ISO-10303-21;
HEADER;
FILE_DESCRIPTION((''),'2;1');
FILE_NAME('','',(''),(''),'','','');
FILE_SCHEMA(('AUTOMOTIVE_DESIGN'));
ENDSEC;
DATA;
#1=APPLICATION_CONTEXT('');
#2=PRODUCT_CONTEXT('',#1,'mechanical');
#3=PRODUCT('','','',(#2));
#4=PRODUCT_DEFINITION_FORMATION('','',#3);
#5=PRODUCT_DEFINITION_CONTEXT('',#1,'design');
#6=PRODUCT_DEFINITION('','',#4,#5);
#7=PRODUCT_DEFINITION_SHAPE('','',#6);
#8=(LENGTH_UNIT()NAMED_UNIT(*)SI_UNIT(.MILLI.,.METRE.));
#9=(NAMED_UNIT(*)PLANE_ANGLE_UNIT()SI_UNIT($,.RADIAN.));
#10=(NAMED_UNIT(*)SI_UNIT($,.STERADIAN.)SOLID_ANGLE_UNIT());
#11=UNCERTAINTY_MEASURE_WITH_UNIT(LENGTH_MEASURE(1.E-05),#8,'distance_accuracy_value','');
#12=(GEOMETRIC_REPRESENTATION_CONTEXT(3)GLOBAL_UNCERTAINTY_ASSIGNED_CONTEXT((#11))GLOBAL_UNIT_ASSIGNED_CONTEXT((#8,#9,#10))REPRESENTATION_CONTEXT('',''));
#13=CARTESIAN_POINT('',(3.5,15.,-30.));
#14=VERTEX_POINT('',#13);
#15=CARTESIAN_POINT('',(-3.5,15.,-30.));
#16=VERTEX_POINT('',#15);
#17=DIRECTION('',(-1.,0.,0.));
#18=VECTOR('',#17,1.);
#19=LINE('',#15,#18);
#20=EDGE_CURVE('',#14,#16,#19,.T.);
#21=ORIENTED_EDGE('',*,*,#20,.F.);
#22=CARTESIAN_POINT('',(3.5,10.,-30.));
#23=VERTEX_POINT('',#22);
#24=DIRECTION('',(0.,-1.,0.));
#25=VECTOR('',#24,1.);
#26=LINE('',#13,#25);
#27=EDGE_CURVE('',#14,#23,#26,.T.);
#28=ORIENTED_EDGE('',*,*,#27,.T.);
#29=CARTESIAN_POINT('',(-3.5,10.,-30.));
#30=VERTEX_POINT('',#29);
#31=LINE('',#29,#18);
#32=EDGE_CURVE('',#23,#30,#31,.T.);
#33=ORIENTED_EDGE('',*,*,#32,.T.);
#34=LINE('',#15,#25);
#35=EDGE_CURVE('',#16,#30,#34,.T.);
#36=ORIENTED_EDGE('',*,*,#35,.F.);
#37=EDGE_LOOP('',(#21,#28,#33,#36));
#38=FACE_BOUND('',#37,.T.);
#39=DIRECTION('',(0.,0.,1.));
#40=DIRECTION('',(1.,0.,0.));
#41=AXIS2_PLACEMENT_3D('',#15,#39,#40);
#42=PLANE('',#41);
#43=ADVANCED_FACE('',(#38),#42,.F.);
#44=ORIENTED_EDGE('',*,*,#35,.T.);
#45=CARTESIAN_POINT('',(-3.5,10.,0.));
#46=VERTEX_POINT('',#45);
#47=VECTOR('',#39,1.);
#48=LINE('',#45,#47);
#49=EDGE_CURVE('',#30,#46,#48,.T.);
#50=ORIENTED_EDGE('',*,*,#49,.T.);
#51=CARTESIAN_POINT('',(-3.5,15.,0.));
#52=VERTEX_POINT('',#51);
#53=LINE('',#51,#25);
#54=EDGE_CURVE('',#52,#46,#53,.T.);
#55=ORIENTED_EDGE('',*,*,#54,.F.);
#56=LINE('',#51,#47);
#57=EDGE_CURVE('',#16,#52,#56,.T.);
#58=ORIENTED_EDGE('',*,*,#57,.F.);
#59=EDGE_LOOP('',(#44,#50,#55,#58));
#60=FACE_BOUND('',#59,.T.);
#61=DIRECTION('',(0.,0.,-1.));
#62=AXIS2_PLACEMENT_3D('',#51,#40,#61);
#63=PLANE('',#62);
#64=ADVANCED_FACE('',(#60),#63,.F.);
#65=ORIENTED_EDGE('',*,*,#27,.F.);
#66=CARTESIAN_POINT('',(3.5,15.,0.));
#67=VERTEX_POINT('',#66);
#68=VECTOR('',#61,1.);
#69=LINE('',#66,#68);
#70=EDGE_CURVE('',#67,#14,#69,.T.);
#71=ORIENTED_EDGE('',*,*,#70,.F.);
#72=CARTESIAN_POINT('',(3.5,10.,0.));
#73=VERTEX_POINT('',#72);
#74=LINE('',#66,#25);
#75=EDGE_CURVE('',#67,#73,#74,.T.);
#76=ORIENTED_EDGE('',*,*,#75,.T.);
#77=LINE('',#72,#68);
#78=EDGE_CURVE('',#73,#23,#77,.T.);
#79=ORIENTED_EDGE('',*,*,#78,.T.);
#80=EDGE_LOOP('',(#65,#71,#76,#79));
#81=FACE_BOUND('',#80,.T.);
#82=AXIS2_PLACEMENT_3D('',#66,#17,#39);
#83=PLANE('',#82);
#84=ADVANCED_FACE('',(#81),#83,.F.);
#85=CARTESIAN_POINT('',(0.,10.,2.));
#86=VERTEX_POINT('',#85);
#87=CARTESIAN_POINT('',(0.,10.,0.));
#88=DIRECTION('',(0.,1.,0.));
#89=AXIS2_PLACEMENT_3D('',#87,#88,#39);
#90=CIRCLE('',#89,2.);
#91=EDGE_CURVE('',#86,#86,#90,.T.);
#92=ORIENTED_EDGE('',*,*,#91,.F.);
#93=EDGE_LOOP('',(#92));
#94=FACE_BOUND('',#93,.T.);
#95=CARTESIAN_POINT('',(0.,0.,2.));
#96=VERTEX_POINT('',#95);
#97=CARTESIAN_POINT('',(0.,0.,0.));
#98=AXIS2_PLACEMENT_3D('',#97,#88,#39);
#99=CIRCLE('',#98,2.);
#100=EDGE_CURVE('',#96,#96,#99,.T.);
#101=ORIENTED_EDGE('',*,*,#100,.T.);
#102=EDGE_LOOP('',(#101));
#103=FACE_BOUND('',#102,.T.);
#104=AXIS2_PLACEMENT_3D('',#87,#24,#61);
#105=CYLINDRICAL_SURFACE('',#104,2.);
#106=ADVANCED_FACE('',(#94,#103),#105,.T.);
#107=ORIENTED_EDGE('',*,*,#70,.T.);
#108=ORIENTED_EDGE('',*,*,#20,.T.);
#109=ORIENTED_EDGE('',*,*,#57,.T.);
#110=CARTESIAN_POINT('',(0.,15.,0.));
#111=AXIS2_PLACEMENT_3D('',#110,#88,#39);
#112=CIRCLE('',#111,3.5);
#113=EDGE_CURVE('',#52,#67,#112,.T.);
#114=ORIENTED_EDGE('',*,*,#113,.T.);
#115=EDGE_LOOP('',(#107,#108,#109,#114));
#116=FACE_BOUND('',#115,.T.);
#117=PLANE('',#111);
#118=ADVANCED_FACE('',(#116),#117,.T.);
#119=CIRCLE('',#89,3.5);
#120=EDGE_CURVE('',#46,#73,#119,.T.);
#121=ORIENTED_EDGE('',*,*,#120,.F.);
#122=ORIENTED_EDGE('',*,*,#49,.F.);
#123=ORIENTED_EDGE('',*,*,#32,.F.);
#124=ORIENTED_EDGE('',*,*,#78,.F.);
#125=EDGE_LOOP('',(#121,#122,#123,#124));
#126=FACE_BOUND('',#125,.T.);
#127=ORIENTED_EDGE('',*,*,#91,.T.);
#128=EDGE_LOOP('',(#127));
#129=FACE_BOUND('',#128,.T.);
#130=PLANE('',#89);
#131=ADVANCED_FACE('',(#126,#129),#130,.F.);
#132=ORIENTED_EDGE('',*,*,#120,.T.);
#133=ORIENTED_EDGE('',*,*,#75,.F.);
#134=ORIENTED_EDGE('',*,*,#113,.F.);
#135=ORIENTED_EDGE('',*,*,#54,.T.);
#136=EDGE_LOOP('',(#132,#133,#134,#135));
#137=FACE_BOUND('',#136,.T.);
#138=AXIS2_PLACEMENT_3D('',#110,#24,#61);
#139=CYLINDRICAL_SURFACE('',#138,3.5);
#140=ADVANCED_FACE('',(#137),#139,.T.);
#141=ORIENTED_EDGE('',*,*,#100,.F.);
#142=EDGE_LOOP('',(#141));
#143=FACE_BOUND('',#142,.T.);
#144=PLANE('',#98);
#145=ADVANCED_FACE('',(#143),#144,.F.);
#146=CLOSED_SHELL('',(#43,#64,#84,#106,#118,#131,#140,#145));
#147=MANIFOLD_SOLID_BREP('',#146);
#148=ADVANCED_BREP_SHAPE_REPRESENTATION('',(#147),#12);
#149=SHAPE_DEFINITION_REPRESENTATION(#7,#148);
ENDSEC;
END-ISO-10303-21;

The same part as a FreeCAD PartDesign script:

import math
import FreeCAD as App
import Part
import Sketcher
from FreeCAD import Vector
Q = App.Units.Quantity

doc = App.newDocument("Part")
params = doc.addObject("Spreadsheet::Sheet", "Params")
for row, (alias, value) in enumerate([
    ("sketch1_diameter", "4 mm"),
    ("pad1_length", "10 mm"),
    ("sketch2_radius", "3.5 mm"),
    ("sketch2_height", "30 mm"),
    ("pad2_length", "5 mm"),
], start=1):
    params.set(f"A{row}", alias)
    params.set(f"B{row}", "=" + value)
    params.setAlias(f"B{row}", alias)

body = doc.addObject("PartDesign::Body", "Body")

sketch1 = doc.addObject("Sketcher::SketchObject", "Sketch")
body.addObject(sketch1)
sketch1.AttachmentSupport = (doc.XZ_Plane, [""])
sketch1.MapMode = "FlatFace"
sketch1.addGeometry(Part.Circle(Vector(0, 0, 0), Vector(0, 0, 1), 2), False)
sketch1.addConstraint([
    Sketcher.Constraint("Coincident", 0, 3, -1, 1),
    Sketcher.Constraint("Diameter", 0, Q("4 mm")),
])
sketch1.setExpression("Constraints[1]", "Params.sketch1_diameter")
pad1 = doc.addObject("PartDesign::Pad", "Pad")
body.addObject(pad1)
pad1.Profile = sketch1
pad1.setExpression("Length", "Params.pad1_length")
pad1.Reversed = True

sketch2 = doc.addObject("Sketcher::SketchObject", "Sketch001")
body.addObject(sketch2)
sketch2.AttachmentSupport = (doc.XZ_Plane, [""])
sketch2.MapMode = "FlatFace"
sketch2.AttachmentOffset = App.Placement(Vector(0, 0, -10), App.Rotation())
sketch2.addGeometry([
    Part.LineSegment(Vector(-3.5, -30, 0), Vector(-3.5, 0, 0)),
    Part.ArcOfCircle(Part.Circle(Vector(0, 0, 0), Vector(0, 0, 1), 3.5), math.radians(0), math.radians(180)),
    Part.LineSegment(Vector(3.5, 0, 0), Vector(3.5, -30, 0)),
    Part.LineSegment(Vector(3.5, -30, 0), Vector(-3.5, -30, 0)),
], False)
sketch2.addConstraint([
    Sketcher.Constraint("Tangent", 0, 2, 1, 2),
    Sketcher.Constraint("Tangent", 1, 1, 2, 1),
    Sketcher.Constraint("Coincident", 2, 2, 3, 1),
    Sketcher.Constraint("Coincident", 3, 2, 0, 1),
    Sketcher.Constraint("Vertical", 0),
    Sketcher.Constraint("Vertical", 2),
    Sketcher.Constraint("Horizontal", 3),
    Sketcher.Constraint("Coincident", 1, 3, -1, 1),
    Sketcher.Constraint("Radius", 1, Q("3.5 mm")),
    Sketcher.Constraint("DistanceY", 0, 1, 0, 2, Q("30 mm")),
])
sketch2.setExpression("Constraints[8]", "Params.sketch2_radius")
sketch2.setExpression("Constraints[9]", "Params.sketch2_height")
pad2 = doc.addObject("PartDesign::Pad", "Pad001")
body.addObject(pad2)
pad2.Profile = sketch2
pad2.setExpression("Length", "Params.pad2_length")
pad2.Reversed = True

doc.recompute()
